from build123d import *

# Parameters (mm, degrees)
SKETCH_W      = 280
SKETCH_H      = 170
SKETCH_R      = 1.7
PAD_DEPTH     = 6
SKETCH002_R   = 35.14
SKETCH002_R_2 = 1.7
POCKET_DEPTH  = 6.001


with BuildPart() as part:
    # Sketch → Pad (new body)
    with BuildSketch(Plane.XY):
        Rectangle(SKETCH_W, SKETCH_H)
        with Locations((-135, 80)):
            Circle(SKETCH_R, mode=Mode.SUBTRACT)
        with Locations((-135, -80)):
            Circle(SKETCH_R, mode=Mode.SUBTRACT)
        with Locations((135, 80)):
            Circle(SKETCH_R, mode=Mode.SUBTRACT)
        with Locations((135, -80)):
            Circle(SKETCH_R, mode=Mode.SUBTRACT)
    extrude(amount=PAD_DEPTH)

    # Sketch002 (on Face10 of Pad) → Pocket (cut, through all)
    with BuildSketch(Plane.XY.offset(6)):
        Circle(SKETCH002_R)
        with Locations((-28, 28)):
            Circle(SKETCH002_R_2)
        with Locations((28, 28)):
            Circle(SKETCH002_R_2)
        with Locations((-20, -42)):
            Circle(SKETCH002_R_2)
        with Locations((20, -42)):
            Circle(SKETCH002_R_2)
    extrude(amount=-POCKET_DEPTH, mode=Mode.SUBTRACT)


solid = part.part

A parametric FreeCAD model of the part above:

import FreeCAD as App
import Part
import Sketcher


def add_polygon(sketch, points):
    """Adds a closed chain of lines whose ends are joined by coincident constraints."""
    first, n = sketch.GeometryCount, len(points)
    for a, b in zip(points, points[1:] + points[:1]):
        sketch.addGeometry(Part.LineSegment(App.Vector(*a, 0), App.Vector(*b, 0)), False)
    for i in range(n):
        sketch.addConstraint(Sketcher.Constraint("Coincident", first + i, 2, first + (i + 1) % n, 1))

doc = App.newDocument("Part")
params = doc.addObject("Spreadsheet::Sheet", "Params")
for row, (alias, value) in enumerate([
    ("sketch1_diameter", "3.4 mm"),
    ("sketch1_width", "280 mm"),
    ("sketch1_height", "170 mm"),
    ("pad1_length", "6 mm"),
    ("sketch2_diameter", "3.4 mm"),
    ("sketch2_diameter2", "70.28 mm"),
], start=1):
    params.set(f"A{row}", alias)
    params.set(f"B{row}", "=" + value)
    params.setAlias(f"B{row}", alias)

body = doc.addObject("PartDesign::Body", "Body")

# Sketch on XY plane
sketch1 = body.newObject("Sketcher::SketchObject", "Sketch")
sketch1.AttachmentSupport = (doc.getObject("XY_Plane"), [""])
sketch1.MapMode = "FlatFace"
add_polygon(sketch1, [(-140, 85), (-140, -85), (140, -85), (140, 85)])  # lines 0-3
sketch1.addGeometry(Part.Circle(App.Vector(-135, -80, 0), App.Vector(0, 0, 1), 1.7), False)  # 4
sketch1.addGeometry(Part.Circle(App.Vector(135, -80, 0), App.Vector(0, 0, 1), 1.7), False)  # 5
sketch1.addGeometry(Part.Circle(App.Vector(-135, 80, 0), App.Vector(0, 0, 1), 1.7), False)  # 6
sketch1.addGeometry(Part.Circle(App.Vector(135, 80, 0), App.Vector(0, 0, 1), 1.7), False)  # 7
sketch1.addConstraint(Sketcher.Constraint("Vertical", 0))
sketch1.addConstraint(Sketcher.Constraint("Horizontal", 1))
sketch1.addConstraint(Sketcher.Constraint("Vertical", 2))
sketch1.addConstraint(Sketcher.Constraint("Horizontal", 3))
sketch1.addConstraint(Sketcher.Constraint("Equal", 4, 5))
sketch1.addConstraint(Sketcher.Constraint("Equal", 5, 6))
sketch1.addConstraint(Sketcher.Constraint("Equal", 6, 7))
sketch1.addConstraint(Sketcher.Constraint("Symmetric", 5, 3, 6, 3, -1, 1))
sketch1.addConstraint(Sketcher.Constraint("Symmetric", 4, 3, 7, 3, -1, 1))
sketch1.addConstraint(Sketcher.Constraint("Symmetric", 0, 2, 2, 2, -1, 1))
sketch1.addConstraint(Sketcher.Constraint("Symmetric", 4, 3, 5, 3, -2))
sketch1.addConstraint(Sketcher.Constraint("Diameter", 4, 3.4))
sketch1.addConstraint(Sketcher.Constraint("DistanceX", 1, 1, 1, 2, 280.0))
sketch1.addConstraint(Sketcher.Constraint("DistanceY", 0, 2, 0, 1, 170.0))
sketch1.addConstraint(Sketcher.Constraint("DistanceX", 4, 3, -1, 1, 135.0))
sketch1.addConstraint(Sketcher.Constraint("DistanceY", 4, 3, -1, 1, 80.0))
sketch1.setExpression("Constraints[15]", "Params.sketch1_diameter")
sketch1.setExpression("Constraints[16]", "Params.sketch1_width")
sketch1.setExpression("Constraints[17]", "Params.sketch1_height")
pad1 = body.newObject("PartDesign::Pad", "Pad")
pad1.Profile = sketch1
pad1.setExpression("Length", "Params.pad1_length")

# Sketch on XY plane
sketch2 = body.newObject("Sketcher::SketchObject", "Sketch001")
sketch2.AttachmentSupport = (doc.getObject("XY_Plane"), [""])
sketch2.MapMode = "FlatFace"
sketch2.AttachmentOffset = App.Placement(App.Vector(0, 0, 6), App.Rotation())
sketch2.addGeometry(Part.Circle(App.Vector(0, 0, 0), App.Vector(0, 0, 1), 35.1), False)
sketch2.addGeometry(Part.Circle(App.Vector(-28, 28, 0), App.Vector(0, 0, 1), 1.7), False)
sketch2.addGeometry(Part.Circle(App.Vector(28, 28, 0), App.Vector(0, 0, 1), 1.7), False)
sketch2.addGeometry(Part.Circle(App.Vector(-20, -42, 0), App.Vector(0, 0, 1), 1.7), False)
sketch2.addGeometry(Part.Circle(App.Vector(20, -42, 0), App.Vector(0, 0, 1), 1.7), False)
sketch2.addConstraint(Sketcher.Constraint("Coincident", 0, 3, -1, 1))
sketch2.addConstraint(Sketcher.Constraint("Equal", 1, 2))
sketch2.addConstraint(Sketcher.Constraint("Equal", 2, 3))
sketch2.addConstraint(Sketcher.Constraint("Equal", 3, 4))
sketch2.addConstraint(Sketcher.Constraint("Symmetric", 1, 3, 2, 3, -2))
sketch2.addConstraint(Sketcher.Constraint("Symmetric", 3, 3, 4, 3, -2))
sketch2.addConstraint(Sketcher.Constraint("Diameter", 1, 3.4))
sketch2.addConstraint(Sketcher.Constraint("Diameter", 0, 70.28))
sketch2.addConstraint(Sketcher.Constraint("DistanceX", 1, 3, -1, 1, 28.0))
sketch2.addConstraint(Sketcher.Constraint("DistanceY", -1, 1, 1, 3, 28.0))
sketch2.addConstraint(Sketcher.Constraint("DistanceX", 3, 3, -1, 1, 20.0))
sketch2.addConstraint(Sketcher.Constraint("DistanceY", 3, 3, -1, 1, 42.0))
sketch2.setExpression("Constraints[6]", "Params.sketch2_diameter")
sketch2.setExpression("Constraints[7]", "Params.sketch2_diameter2")
pocket1 = body.newObject("PartDesign::Pocket", "Pocket")
pocket1.Profile = sketch2
pocket1.Type = "ThroughAll"

doc.recompute()
